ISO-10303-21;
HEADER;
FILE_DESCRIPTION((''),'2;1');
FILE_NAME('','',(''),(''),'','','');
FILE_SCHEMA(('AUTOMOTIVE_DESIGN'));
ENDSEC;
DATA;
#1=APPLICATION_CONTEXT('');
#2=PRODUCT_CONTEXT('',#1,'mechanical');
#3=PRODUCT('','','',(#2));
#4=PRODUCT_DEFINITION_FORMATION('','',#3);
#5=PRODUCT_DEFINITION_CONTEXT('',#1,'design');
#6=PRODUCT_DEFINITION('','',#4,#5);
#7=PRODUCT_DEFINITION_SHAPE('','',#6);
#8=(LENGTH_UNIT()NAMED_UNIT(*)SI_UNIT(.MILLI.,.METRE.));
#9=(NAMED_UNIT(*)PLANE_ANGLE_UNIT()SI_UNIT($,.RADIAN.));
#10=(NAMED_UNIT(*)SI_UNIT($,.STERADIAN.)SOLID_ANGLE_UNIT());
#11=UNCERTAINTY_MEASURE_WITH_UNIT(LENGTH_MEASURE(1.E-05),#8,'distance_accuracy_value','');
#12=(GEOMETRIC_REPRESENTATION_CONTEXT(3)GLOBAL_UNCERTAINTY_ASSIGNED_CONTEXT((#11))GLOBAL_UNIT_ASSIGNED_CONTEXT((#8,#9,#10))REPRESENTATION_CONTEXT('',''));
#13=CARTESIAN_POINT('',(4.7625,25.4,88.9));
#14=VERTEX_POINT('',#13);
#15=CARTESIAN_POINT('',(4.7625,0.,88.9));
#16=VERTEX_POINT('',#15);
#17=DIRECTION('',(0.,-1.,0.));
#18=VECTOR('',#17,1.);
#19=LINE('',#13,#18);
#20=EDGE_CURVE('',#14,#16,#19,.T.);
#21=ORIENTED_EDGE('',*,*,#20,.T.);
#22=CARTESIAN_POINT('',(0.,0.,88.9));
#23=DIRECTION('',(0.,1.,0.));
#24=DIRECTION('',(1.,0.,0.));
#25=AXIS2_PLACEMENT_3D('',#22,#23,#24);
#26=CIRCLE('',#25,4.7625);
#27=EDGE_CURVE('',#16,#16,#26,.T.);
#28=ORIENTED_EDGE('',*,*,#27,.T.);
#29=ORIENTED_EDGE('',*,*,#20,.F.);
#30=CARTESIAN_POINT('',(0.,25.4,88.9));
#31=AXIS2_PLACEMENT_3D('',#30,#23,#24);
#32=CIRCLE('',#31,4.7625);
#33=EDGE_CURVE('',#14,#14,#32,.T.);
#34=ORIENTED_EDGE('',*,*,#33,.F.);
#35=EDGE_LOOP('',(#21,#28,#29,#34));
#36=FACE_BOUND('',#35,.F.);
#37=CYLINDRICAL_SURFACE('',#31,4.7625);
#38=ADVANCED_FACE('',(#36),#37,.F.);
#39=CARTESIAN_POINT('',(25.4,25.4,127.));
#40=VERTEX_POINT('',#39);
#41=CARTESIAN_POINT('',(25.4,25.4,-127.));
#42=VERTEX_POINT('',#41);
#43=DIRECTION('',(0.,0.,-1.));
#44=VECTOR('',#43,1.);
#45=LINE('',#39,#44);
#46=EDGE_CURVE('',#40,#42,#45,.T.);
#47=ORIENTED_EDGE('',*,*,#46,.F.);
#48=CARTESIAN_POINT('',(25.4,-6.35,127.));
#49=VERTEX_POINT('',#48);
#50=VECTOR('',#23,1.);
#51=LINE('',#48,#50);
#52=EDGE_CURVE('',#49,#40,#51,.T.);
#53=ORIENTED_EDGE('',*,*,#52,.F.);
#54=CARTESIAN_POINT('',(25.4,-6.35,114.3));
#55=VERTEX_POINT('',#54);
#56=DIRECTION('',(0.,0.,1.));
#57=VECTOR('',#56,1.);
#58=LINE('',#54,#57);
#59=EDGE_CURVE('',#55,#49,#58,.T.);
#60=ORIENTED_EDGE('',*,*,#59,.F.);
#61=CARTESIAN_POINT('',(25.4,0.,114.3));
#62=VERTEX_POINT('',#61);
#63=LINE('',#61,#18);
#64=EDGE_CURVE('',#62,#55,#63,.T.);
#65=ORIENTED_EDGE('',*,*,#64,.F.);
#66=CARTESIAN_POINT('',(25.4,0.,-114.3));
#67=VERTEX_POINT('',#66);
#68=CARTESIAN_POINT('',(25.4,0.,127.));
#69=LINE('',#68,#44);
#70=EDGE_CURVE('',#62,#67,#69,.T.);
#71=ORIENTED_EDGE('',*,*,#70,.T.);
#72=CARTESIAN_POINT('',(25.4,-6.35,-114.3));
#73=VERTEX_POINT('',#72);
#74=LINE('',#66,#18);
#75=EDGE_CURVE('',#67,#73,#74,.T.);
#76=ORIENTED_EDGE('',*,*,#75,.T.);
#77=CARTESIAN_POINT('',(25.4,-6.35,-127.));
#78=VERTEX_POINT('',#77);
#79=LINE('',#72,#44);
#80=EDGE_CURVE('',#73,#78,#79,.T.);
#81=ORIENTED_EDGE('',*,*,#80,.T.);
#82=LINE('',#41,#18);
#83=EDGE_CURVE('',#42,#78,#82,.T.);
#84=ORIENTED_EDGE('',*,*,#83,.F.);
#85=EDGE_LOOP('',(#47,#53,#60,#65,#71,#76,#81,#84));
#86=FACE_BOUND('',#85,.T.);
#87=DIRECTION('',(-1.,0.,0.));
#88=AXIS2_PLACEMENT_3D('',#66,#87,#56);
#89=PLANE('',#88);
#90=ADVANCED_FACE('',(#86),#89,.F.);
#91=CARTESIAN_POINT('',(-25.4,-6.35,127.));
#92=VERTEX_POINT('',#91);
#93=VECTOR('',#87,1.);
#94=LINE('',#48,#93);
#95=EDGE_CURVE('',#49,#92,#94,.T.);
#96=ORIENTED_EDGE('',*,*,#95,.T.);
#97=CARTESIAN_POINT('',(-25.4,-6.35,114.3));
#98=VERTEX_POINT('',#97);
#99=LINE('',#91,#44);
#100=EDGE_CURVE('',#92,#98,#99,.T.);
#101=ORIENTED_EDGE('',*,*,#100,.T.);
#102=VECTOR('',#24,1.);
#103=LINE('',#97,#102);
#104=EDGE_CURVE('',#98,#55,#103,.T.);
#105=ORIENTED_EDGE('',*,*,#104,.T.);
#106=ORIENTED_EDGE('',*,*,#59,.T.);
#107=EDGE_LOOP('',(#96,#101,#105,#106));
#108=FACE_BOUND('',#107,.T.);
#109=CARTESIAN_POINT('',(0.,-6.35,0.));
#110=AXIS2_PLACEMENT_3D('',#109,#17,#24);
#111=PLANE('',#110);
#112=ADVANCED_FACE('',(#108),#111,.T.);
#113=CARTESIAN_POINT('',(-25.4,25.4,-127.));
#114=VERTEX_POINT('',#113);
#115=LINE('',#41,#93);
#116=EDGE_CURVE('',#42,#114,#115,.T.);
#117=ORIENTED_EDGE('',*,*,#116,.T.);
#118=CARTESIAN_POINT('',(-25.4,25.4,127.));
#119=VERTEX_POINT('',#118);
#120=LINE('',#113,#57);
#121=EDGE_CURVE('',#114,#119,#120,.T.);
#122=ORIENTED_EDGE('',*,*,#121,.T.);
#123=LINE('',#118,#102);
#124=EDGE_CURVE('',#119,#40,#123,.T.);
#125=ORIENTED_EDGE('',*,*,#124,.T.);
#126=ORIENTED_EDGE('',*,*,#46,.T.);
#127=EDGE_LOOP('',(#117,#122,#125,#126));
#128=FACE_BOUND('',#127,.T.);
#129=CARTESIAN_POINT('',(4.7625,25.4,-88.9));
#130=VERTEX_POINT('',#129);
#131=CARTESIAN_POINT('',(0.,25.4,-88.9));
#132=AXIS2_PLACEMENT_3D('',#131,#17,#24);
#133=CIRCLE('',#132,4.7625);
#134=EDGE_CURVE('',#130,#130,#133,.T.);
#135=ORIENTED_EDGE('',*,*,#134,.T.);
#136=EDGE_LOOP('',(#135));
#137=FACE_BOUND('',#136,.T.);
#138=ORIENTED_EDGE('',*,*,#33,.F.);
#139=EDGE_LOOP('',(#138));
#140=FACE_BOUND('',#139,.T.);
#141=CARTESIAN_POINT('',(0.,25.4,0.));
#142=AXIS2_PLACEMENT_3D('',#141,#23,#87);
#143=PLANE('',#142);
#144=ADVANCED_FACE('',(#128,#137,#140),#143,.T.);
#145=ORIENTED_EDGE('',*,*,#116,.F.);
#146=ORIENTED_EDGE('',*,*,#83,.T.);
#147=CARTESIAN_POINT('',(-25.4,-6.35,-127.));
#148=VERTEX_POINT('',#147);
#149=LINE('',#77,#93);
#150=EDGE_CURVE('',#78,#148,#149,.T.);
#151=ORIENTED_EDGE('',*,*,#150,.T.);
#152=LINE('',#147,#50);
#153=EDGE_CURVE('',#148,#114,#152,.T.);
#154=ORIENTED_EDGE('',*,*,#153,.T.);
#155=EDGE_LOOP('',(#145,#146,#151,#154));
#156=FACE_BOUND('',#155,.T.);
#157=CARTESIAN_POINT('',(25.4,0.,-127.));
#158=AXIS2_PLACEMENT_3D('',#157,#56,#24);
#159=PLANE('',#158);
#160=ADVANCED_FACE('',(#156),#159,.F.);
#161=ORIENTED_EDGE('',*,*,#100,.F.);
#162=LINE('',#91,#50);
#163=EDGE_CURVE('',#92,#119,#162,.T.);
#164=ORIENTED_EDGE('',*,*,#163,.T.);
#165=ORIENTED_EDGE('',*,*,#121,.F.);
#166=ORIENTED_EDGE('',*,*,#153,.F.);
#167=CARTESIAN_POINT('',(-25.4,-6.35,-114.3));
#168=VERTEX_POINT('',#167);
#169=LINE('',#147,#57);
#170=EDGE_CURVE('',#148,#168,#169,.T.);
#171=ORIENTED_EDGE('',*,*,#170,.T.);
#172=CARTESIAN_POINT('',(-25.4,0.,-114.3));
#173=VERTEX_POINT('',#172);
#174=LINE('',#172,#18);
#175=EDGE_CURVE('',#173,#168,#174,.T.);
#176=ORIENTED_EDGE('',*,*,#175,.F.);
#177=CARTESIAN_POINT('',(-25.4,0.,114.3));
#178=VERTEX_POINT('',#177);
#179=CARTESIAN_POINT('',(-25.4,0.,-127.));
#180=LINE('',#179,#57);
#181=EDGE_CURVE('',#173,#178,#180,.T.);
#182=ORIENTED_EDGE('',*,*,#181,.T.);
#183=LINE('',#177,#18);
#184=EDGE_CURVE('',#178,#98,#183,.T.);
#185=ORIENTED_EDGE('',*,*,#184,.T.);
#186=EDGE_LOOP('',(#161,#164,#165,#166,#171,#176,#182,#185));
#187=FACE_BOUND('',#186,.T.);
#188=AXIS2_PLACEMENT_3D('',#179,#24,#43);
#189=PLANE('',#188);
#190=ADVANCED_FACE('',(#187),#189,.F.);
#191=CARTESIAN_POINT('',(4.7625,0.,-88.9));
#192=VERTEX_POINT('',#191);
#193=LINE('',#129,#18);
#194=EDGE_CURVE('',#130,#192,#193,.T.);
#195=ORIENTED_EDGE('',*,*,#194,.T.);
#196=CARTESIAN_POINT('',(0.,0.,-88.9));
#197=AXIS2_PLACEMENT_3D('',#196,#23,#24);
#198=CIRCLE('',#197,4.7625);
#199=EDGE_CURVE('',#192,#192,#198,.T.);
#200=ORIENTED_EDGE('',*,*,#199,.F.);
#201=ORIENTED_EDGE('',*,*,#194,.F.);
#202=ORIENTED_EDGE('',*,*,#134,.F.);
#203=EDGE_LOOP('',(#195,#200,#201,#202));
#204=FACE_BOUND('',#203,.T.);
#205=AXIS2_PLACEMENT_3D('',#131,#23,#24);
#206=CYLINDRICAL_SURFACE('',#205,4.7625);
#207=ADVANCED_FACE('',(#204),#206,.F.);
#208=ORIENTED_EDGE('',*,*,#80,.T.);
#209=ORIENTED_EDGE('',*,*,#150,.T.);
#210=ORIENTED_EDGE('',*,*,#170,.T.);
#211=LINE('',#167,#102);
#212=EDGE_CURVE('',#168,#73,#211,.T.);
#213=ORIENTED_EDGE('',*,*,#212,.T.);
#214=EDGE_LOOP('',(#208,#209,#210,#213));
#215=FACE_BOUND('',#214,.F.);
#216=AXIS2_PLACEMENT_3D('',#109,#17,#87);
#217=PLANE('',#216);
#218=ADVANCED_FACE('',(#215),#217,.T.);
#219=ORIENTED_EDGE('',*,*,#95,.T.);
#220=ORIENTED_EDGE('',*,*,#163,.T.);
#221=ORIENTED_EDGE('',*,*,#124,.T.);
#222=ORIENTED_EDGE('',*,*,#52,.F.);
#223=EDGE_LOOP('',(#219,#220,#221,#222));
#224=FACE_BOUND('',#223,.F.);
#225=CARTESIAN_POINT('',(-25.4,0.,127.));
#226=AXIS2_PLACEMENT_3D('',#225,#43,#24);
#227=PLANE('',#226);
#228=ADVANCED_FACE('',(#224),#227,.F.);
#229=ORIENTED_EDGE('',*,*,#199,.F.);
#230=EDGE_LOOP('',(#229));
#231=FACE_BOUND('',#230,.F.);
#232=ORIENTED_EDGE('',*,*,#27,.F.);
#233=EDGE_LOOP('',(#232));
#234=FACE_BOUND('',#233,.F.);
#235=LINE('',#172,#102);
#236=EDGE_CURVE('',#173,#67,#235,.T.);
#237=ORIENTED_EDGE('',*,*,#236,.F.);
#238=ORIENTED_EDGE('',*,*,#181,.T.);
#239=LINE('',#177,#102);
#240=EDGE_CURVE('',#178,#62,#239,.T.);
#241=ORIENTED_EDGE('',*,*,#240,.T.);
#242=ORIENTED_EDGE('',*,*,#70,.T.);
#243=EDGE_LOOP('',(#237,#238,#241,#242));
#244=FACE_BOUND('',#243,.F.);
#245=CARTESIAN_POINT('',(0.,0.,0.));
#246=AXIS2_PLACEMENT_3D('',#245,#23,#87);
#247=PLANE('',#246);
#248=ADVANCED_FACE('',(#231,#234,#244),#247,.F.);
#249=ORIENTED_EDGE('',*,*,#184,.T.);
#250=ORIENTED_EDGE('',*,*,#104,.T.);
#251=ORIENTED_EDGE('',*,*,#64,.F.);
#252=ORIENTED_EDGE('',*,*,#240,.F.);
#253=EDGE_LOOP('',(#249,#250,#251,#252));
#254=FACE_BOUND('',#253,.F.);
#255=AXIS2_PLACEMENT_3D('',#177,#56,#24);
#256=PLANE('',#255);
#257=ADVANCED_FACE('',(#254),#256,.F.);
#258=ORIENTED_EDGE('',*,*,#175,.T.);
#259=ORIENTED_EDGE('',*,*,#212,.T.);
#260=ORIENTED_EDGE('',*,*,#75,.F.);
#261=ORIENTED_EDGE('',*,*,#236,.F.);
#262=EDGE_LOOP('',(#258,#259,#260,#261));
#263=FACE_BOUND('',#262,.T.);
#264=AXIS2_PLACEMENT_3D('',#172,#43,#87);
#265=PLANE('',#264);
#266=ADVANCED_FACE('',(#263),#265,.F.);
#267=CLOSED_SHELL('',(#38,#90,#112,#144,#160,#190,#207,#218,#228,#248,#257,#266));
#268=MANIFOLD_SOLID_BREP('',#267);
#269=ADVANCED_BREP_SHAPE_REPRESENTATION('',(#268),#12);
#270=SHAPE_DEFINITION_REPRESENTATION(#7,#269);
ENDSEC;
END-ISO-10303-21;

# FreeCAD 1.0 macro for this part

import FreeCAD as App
import Part
import Sketcher
from FreeCAD import Vector
Q = App.Units.Quantity

doc = App.newDocument("Part")
body = doc.addObject("PartDesign::Body", "Body")

sketch1 = body.newObject("Sketcher::SketchObject", "Sketch")
sketch1.AttachmentSupport = (doc.getObject("XZ_Plane"), [""])
sketch1.MapMode = "FlatFace"
sketch1.addGeometry(Part.LineSegment(Vector(-25, -127, 0), Vector(-25, 127, 0)), False)
sketch1.addGeometry(Part.LineSegment(Vector(-25, 127, 0), Vector(25, 127, 0)), False)
sketch1.addGeometry(Part.LineSegment(Vector(25, 127, 0), Vector(25, -127, 0)), False)
sketch1.addGeometry(Part.LineSegment(Vector(25, -127, 0), Vector(-25, -127, 0)), False)
sketch1.addConstraint(Sketcher.Constraint("Coincident", 0, 2, 1, 1))
sketch1.addConstraint(Sketcher.Constraint("Coincident", 1, 2, 2, 1))
sketch1.addConstraint(Sketcher.Constraint("Coincident", 2, 2, 3, 1))
sketch1.addConstraint(Sketcher.Constraint("Coincident", 3, 2, 0, 1))
sketch1.addConstraint(Sketcher.Constraint("Vertical", 0))
sketch1.addConstraint(Sketcher.Constraint("Horizontal", 1))
sketch1.addConstraint(Sketcher.Constraint("Vertical", 2))
sketch1.addConstraint(Sketcher.Constraint("Horizontal", 3))
sketch1.addConstraint(Sketcher.Constraint("Symmetric", 0, 2, 2, 2, -1, 1))
sketch1.addConstraint(Sketcher.Constraint("DistanceX", 1, 1, 1, 2, Q("2 in")))
sketch1.addConstraint(Sketcher.Constraint("DistanceY", 0, 1, 0, 2, Q("10 in")))
pad1 = body.newObject("PartDesign::Pad", "Pad")
pad1.Profile = sketch1
pad1.Length = Q("1 in")
pad1.Reversed = True

sketch2 = body.newObject("Sketcher::SketchObject", "Sketch001")
sketch2.AttachmentSupport = (doc.getObject("XZ_Plane"), [""])
sketch2.MapMode = "FlatFace"
sketch2.addGeometry(Part.LineSegment(Vector(25, 127, 0), Vector(-25, 127, 0)), False)
sketch2.addGeometry(Part.LineSegment(Vector(-25, 127, 0), Vector(-25, 114, 0)), False)
sketch2.addGeometry(Part.LineSegment(Vector(-25, 114, 0), Vector(25, 114, 0)), False)
sketch2.addGeometry(Part.LineSegment(Vector(25, 114, 0), Vector(25, 127, 0)), False)
sketch2.addConstraint(Sketcher.Constraint("Coincident", 0, 2, 1, 1))
sketch2.addConstraint(Sketcher.Constraint("Coincident", 1, 2, 2, 1))
sketch2.addConstraint(Sketcher.Constraint("Coincident", 2, 2, 3, 1))
sketch2.addConstraint(Sketcher.Constraint("Coincident", 3, 2, 0, 1))
sketch2.addConstraint(Sketcher.Constraint("Horizontal", 0))
sketch2.addConstraint(Sketcher.Constraint("Vertical", 1))
sketch2.addConstraint(Sketcher.Constraint("Horizontal", 2))
sketch2.addConstraint(Sketcher.Constraint("Vertical", 3))
sketch2.addConstraint(Sketcher.Constraint("DistanceY", 1, 2, 1, 1, Q("0.5 in")))
sketch2.addConstraint(Sketcher.Constraint("DistanceX", 0, 2, -1, 1, Q("1 in")))
sketch2.addConstraint(Sketcher.Constraint("DistanceX", -1, 1, 2, 2, Q("1 in")))
sketch2.addConstraint(Sketcher.Constraint("DistanceY", -1, 1, 0, 2, Q("5 in")))
pad2 = body.newObject("PartDesign::Pad", "Pad001")
pad2.Profile = sketch2
pad2.Length = Q("0.25 in")
doc.recompute()

mirrored = body.newObject("PartDesign::Mirrored", "Mirrored")
mirrored.Originals = [pad2]
mirrored.MirrorPlane = (doc.getObject("XY_Plane"), [""])
body.Tip = mirrored

sketch3 = body.newObject("Sketcher::SketchObject", "Sketch002")
sketch3.AttachmentSupport = (doc.getObject("XZ_Plane"), [""])
sketch3.MapMode = "FlatFace"
sketch3.AttachmentOffset = App.Placement(Vector(0, 0, -1 * 25.4), App.Rotation())
sketch3.addGeometry(Part.Circle(Vector(0, 88.9, 0), Vector(0, 0, 1), 4.8), False)
sketch3.addConstraint(Sketcher.Constraint("PointOnObject", 0, 3, -2))
sketch3.addConstraint(Sketcher.Constraint("Diameter", 0, Q("0.375 in")))
sketch3.addConstraint(Sketcher.Constraint("DistanceY", -1, 1, 0, 3, Q("3.5 in")))
pocket1 = body.newObject("PartDesign::Pocket", "Pocket")
pocket1.Profile = sketch3
pocket1.Type = "ThroughAll"
pocket1.Reversed = True
doc.recompute()

mirrored2 = body.newObject("PartDesign::Mirrored", "Mirrored001")
mirrored2.Originals = [pocket1]
mirrored2.MirrorPlane = (doc.getObject("XY_Plane"), [""])
body.Tip = mirrored2

doc.recompute()
